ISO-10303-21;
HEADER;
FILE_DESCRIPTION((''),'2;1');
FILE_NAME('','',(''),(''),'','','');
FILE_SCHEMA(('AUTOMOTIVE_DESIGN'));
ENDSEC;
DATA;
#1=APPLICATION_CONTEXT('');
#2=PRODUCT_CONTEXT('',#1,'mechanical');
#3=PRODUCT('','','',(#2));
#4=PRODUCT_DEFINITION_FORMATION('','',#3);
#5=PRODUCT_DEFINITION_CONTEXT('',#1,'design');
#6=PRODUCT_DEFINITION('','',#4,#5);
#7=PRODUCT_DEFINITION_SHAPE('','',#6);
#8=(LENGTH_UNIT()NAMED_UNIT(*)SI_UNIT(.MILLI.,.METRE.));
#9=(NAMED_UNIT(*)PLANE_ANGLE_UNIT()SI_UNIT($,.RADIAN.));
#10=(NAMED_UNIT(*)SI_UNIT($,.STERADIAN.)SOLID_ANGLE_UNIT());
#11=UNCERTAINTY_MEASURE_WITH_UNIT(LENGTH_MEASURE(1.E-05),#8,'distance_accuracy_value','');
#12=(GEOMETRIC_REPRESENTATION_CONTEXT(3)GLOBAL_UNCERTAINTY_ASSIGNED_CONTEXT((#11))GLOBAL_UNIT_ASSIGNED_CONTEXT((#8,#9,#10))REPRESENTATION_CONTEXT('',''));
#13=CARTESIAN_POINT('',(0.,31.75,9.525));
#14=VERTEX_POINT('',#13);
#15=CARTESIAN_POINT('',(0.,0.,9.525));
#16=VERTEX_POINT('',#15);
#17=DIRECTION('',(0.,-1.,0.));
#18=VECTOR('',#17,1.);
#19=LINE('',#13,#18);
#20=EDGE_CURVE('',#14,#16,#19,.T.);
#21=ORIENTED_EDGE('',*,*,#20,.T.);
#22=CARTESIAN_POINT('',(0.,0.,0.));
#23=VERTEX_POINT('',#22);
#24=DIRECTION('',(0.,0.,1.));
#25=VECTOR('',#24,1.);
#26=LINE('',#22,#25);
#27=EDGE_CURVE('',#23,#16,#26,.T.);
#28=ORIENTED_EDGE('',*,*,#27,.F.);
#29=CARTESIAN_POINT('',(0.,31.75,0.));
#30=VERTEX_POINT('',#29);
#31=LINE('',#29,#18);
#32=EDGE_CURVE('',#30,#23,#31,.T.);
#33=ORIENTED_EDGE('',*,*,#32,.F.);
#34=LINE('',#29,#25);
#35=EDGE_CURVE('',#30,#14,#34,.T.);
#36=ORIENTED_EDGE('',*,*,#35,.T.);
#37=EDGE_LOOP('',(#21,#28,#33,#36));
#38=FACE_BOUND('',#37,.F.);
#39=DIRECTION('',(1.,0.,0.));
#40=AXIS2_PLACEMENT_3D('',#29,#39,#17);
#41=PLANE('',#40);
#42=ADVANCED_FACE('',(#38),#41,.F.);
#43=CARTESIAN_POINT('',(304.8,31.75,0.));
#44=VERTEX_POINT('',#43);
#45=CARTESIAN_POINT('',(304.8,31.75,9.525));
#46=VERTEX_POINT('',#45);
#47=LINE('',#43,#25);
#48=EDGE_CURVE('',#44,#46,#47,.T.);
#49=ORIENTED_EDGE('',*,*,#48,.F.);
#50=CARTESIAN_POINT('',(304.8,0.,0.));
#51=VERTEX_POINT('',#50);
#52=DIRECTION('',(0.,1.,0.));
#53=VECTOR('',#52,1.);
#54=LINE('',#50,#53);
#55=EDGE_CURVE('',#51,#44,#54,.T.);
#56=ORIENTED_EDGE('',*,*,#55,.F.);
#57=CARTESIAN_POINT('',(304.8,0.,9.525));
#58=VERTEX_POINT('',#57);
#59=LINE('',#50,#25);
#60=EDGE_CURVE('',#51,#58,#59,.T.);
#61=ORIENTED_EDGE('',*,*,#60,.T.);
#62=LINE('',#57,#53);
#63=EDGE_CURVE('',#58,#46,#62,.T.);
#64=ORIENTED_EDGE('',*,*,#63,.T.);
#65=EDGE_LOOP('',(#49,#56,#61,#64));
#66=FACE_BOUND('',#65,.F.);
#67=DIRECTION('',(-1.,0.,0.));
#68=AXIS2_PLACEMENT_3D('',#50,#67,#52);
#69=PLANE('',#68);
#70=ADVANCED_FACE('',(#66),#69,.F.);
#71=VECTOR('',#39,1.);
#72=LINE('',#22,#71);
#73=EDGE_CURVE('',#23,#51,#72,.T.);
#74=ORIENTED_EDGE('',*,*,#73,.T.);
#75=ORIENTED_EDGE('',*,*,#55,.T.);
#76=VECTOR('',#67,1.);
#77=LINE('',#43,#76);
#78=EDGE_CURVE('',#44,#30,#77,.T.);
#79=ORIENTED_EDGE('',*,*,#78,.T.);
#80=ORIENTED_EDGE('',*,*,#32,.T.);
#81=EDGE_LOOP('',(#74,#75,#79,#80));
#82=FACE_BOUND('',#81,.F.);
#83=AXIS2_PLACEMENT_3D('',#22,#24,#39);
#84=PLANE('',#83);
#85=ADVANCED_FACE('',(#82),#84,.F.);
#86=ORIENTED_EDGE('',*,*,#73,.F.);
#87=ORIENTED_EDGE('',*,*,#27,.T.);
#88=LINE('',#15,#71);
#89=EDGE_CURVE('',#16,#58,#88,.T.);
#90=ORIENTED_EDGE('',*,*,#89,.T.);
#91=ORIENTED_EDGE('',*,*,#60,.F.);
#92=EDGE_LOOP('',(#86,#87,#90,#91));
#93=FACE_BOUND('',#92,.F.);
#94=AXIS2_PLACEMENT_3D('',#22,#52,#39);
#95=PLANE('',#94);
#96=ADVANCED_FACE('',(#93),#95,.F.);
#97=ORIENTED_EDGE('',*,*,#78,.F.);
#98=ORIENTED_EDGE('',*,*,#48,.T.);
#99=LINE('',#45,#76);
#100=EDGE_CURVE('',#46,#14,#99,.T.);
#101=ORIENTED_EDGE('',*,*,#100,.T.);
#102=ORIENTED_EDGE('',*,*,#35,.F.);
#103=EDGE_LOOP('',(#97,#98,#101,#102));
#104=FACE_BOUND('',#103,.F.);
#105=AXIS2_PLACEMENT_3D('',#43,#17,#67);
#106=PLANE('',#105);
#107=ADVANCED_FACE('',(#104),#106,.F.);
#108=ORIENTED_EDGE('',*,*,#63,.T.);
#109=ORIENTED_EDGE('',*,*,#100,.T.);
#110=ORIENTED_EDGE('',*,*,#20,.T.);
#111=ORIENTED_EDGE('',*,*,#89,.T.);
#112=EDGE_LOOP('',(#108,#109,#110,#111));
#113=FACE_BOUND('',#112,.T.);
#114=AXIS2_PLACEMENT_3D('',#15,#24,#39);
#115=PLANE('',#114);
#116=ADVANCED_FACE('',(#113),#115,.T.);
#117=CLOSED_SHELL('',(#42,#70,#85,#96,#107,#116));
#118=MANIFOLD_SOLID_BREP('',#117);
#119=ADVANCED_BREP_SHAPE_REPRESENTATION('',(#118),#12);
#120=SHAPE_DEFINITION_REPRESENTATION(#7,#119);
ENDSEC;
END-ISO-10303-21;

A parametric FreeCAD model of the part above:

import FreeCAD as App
import Part
import Sketcher

V = App.Vector
Q = App.Units.Quantity

doc = App.newDocument("Part")
params = doc.addObject("Spreadsheet::Sheet", "Params")
for row, (alias, value) in enumerate([
    ("sketch1_width", "12 in"),
    ("sketch1_height", "1.25 in"),
    ("pad1_length", "0.375 in"),
], start=1):
    params.set(f"A{row}", alias)
    params.set(f"B{row}", "=" + value)
    params.setAlias(f"B{row}", alias)

body = doc.addObject("PartDesign::Body", "Body")

# Sketch on XY plane
sketch1 = body.newObject("Sketcher::SketchObject", "Sketch")
sketch1.AttachmentSupport = (doc.getObject("XY_Plane"), [""])
sketch1.MapMode = "FlatFace"
sketch1.addGeometry(Part.LineSegment(V(0, 32, 0), V(0, 0, 0)), False)
sketch1.addGeometry(Part.LineSegment(V(0, 0, 0), V(305, 0, 0)), False)
sketch1.addGeometry(Part.LineSegment(V(305, 0, 0), V(305, 32, 0)), False)
sketch1.addGeometry(Part.LineSegment(V(305, 32, 0), V(0, 32, 0)), False)
sketch1.addConstraint(Sketcher.Constraint("Coincident", 0, 2, 1, 1))
sketch1.addConstraint(Sketcher.Constraint("Coincident", 1, 2, 2, 1))
sketch1.addConstraint(Sketcher.Constraint("Coincident", 2, 2, 3, 1))
sketch1.addConstraint(Sketcher.Constraint("Coincident", 3, 2, 0, 1))
sketch1.addConstraint(Sketcher.Constraint("Vertical", 0))
sketch1.addConstraint(Sketcher.Constraint("Horizontal", 1))
sketch1.addConstraint(Sketcher.Constraint("Vertical", 2))
sketch1.addConstraint(Sketcher.Constraint("Horizontal", 3))
sketch1.addConstraint(Sketcher.Constraint("Coincident", 0, 2, -1, 1))
sketch1.addConstraint(Sketcher.Constraint("DistanceX", 1, 1, 1, 2, Q("12 in")))
sketch1.addConstraint(Sketcher.Constraint("DistanceY", 0, 2, 0, 1, Q("1.25 in")))
sketch1.setExpression("Constraints[9]", "Params.sketch1_width")
sketch1.setExpression("Constraints[10]", "Params.sketch1_height")
pad1 = body.newObject("PartDesign::Pad", "Pad")
pad1.Profile = sketch1
pad1.setExpression("Length", "Params.pad1_length")

doc.recompute()
